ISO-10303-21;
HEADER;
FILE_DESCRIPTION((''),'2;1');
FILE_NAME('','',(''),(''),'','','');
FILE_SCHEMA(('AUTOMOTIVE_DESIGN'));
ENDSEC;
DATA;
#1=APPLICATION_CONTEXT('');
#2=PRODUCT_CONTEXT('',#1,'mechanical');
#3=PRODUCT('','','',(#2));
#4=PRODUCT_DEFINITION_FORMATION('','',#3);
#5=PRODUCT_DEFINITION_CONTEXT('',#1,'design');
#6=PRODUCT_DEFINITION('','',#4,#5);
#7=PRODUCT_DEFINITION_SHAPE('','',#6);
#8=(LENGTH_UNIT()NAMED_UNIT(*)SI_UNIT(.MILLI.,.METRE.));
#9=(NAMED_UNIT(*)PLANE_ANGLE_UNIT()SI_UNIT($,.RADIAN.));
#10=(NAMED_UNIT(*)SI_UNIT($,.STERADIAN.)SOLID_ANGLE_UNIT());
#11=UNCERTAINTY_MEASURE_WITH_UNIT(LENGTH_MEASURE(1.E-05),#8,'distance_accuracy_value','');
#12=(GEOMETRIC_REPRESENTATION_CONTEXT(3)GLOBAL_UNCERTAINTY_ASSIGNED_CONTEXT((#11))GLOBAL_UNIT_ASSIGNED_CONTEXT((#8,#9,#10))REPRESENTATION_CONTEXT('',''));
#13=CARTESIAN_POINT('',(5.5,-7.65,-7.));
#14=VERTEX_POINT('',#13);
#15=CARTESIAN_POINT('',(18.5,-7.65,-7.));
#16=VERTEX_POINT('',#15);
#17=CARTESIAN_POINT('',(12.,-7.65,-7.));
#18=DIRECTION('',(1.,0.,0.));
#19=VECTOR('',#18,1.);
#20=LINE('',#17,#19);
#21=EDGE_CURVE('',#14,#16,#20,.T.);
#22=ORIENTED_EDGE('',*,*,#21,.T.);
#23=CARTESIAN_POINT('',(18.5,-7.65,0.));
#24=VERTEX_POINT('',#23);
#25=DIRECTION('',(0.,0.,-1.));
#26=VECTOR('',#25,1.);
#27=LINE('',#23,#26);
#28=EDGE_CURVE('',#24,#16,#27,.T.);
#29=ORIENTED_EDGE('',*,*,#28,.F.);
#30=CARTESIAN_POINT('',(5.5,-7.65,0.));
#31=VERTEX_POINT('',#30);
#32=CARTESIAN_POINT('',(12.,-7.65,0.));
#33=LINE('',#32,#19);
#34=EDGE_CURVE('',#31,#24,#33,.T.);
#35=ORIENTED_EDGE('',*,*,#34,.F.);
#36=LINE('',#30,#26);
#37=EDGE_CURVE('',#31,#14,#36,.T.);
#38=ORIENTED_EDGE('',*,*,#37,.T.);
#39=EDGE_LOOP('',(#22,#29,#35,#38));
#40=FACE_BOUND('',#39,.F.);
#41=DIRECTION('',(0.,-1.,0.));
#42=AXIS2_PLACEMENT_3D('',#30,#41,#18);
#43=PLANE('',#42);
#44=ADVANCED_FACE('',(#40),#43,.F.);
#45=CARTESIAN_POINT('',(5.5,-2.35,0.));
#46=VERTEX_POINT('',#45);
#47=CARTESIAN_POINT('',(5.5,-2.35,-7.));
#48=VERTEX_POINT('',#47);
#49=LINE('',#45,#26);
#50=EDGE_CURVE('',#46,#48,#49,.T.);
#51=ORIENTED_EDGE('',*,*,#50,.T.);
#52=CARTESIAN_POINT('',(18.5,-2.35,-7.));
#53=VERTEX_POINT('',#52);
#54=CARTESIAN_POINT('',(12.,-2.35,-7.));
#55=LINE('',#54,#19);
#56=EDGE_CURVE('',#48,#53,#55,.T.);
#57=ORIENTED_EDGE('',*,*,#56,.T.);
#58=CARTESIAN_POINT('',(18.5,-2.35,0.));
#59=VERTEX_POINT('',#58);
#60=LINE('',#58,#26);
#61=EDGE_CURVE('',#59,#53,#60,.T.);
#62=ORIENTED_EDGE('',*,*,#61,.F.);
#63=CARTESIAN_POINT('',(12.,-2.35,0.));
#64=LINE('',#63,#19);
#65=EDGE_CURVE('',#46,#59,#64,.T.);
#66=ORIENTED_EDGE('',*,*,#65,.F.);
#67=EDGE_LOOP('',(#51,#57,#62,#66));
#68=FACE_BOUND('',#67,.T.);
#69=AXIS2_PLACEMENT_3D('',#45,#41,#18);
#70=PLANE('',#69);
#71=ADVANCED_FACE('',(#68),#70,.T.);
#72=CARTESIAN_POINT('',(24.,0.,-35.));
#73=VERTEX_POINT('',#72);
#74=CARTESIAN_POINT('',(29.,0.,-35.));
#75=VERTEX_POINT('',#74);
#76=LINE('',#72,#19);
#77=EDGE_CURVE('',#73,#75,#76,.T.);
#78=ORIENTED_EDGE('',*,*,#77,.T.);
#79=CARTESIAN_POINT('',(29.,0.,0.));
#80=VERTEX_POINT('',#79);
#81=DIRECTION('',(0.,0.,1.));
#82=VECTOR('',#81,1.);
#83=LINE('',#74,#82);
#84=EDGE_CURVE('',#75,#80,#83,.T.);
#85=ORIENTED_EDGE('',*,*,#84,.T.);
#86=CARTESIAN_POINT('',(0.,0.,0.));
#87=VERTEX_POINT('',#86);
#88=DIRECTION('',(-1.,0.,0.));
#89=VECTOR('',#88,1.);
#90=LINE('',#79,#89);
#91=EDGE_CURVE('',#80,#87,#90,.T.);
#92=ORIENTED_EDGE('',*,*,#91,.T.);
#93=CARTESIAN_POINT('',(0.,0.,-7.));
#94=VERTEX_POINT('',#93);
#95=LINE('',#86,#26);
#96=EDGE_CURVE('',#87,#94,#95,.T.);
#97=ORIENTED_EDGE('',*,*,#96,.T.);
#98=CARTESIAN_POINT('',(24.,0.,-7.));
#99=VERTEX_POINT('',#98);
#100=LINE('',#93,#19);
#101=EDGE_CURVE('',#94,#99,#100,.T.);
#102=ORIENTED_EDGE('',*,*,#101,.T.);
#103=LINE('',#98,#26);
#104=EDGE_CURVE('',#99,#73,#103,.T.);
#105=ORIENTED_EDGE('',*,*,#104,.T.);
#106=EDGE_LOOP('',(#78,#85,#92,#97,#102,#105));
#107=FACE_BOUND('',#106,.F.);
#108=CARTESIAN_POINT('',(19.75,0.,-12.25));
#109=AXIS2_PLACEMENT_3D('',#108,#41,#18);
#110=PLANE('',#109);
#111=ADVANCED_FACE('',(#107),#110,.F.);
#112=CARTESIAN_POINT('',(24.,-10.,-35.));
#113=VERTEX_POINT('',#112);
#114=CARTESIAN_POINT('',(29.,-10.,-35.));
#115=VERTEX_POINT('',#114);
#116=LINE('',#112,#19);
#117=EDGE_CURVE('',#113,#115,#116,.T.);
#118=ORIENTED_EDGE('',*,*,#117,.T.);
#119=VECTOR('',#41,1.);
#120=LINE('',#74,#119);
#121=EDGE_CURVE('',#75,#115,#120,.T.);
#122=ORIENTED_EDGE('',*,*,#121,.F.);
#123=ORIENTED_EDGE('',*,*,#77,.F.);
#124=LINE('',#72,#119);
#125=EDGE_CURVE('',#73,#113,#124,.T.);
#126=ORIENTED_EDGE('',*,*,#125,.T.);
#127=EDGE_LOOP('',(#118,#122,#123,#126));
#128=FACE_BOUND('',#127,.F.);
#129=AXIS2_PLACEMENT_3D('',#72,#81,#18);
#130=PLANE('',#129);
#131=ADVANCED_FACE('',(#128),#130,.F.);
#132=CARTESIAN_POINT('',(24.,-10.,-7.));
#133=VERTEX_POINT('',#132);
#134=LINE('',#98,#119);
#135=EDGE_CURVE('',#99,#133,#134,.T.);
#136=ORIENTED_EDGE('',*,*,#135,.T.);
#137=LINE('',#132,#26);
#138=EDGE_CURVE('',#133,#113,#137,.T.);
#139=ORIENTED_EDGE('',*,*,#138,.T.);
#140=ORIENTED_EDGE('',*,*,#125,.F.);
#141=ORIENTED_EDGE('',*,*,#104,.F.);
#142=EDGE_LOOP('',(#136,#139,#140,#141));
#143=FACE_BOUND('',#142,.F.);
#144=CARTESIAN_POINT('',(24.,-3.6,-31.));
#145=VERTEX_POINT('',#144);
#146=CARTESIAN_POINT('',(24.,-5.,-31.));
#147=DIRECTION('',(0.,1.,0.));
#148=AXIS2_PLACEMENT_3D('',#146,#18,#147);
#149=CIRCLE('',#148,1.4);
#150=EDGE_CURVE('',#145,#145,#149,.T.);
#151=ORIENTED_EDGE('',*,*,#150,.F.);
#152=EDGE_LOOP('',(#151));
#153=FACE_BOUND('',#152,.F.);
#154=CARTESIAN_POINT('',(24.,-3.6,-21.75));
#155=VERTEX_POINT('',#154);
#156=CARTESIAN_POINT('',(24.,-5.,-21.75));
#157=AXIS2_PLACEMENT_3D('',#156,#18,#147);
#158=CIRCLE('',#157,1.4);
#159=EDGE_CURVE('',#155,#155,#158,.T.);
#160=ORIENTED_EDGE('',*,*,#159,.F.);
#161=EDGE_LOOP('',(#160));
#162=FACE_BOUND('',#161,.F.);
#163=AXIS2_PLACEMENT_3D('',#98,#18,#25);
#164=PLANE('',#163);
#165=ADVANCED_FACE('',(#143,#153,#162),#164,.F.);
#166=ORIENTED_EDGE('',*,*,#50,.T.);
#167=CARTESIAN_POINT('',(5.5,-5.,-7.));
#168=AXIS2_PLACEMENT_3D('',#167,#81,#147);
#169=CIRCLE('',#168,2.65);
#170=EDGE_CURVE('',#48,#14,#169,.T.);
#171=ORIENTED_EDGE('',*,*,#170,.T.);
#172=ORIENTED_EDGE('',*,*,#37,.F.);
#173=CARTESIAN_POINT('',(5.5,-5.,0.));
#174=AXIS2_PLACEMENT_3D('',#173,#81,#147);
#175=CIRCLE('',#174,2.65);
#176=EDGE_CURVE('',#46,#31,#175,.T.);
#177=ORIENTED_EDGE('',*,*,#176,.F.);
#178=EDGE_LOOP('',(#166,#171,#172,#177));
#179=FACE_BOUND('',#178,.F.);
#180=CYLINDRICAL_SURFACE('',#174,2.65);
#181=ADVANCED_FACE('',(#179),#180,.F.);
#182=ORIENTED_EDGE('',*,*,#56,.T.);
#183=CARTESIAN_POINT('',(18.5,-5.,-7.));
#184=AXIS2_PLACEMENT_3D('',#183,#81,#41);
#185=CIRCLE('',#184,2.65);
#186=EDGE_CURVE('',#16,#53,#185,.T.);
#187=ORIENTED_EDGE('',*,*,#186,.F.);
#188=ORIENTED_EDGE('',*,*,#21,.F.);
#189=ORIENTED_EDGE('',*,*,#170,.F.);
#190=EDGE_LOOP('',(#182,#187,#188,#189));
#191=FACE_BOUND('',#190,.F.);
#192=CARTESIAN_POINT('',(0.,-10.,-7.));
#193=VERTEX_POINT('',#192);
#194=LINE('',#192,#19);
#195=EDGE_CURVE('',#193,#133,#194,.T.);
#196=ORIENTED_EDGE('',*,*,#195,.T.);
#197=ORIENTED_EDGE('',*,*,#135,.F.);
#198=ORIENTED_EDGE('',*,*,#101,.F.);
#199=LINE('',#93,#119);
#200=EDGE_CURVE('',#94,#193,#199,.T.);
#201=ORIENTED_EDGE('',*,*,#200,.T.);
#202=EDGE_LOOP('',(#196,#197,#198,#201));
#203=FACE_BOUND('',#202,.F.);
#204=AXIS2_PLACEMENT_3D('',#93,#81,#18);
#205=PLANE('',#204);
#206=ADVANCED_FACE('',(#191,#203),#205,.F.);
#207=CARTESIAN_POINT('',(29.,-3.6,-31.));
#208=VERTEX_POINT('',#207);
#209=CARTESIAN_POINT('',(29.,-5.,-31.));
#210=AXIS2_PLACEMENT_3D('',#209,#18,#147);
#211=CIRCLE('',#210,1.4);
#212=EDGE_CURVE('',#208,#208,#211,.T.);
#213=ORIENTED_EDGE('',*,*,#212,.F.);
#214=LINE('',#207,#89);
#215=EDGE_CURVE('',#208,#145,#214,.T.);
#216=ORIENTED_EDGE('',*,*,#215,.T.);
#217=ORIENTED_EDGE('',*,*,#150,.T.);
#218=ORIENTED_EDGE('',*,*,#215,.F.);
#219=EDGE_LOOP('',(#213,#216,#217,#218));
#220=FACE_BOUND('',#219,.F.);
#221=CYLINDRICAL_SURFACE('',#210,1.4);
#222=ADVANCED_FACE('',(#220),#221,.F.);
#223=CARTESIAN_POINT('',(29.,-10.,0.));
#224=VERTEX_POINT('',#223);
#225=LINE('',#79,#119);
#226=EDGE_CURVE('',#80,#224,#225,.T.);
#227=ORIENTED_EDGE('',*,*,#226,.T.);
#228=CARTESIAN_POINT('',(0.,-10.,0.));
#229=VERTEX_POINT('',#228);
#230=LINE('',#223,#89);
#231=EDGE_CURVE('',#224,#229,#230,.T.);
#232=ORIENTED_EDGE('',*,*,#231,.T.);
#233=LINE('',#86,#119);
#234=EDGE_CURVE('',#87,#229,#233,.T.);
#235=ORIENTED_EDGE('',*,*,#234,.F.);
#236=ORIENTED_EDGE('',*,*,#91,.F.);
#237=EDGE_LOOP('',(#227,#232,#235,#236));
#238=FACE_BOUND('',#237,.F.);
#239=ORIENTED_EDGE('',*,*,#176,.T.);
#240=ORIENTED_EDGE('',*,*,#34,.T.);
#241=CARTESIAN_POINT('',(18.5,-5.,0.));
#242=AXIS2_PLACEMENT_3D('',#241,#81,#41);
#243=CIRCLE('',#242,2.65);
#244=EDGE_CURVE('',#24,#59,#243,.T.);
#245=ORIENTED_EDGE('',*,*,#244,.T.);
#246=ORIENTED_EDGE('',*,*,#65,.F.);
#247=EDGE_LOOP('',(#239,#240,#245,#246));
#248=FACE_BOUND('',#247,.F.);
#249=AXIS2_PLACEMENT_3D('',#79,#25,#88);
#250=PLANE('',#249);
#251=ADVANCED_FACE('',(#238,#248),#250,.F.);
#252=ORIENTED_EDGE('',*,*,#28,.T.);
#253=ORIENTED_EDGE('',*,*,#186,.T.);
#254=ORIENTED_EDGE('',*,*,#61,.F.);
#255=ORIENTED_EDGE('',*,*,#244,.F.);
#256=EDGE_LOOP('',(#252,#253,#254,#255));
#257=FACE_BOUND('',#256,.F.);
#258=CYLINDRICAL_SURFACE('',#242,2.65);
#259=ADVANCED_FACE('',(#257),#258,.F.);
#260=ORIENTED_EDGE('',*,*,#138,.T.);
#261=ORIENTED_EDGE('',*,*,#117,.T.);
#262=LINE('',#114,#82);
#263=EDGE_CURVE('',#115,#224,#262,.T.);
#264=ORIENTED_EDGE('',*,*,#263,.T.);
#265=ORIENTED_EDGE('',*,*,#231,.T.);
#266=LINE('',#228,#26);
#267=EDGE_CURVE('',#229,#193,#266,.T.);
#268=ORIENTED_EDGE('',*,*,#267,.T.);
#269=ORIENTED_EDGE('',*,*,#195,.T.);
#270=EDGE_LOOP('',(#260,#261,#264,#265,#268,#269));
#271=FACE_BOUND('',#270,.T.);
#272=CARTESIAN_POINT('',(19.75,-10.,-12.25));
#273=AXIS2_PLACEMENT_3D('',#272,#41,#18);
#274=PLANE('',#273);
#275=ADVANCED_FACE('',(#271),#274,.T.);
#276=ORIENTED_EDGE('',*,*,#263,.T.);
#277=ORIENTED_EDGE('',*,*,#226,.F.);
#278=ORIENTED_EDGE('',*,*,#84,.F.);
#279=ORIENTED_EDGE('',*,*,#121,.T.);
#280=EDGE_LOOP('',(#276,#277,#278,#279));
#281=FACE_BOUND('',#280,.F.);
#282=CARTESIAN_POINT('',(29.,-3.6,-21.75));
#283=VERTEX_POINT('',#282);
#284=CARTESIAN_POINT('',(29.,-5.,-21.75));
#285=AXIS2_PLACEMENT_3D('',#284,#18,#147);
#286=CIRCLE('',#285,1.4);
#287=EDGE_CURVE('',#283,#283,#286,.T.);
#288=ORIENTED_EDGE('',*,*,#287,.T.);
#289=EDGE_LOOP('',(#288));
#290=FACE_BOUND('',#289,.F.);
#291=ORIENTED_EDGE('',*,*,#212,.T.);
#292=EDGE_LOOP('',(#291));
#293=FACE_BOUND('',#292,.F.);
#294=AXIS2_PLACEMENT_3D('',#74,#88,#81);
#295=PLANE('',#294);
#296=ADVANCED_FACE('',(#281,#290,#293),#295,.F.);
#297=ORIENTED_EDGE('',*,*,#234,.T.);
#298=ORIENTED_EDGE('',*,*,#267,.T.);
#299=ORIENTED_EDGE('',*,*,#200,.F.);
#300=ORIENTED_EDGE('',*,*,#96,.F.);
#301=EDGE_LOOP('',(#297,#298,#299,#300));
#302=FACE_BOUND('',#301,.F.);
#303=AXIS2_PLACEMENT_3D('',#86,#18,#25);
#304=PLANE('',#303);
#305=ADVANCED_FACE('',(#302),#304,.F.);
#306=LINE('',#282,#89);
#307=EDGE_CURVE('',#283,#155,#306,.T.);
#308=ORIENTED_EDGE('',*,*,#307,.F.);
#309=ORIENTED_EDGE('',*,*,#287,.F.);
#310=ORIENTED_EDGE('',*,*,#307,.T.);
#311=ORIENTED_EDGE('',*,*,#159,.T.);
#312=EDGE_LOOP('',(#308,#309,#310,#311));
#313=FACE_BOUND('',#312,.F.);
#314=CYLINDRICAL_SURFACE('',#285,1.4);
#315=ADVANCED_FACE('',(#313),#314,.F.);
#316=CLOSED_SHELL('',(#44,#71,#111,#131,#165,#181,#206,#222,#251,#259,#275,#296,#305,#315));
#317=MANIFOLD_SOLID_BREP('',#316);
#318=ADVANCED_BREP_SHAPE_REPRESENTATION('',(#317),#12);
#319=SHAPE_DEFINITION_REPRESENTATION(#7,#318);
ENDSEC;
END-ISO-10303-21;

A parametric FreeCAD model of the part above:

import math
import FreeCAD as App
import Part
import Sketcher
from FreeCAD import Vector

doc = App.newDocument("Part")
body = doc.addObject("PartDesign::Body", "Body")

# Sketch on XZ plane
sketch1 = body.newObject("Sketcher::SketchObject", "Sketch")
sketch1.AttachmentSupport = (doc.getObject("XZ_Plane"), [""])
sketch1.MapMode = "FlatFace"
sketch1.addGeometry(Part.LineSegment(Vector(29, 0, 0), Vector(0, 0, 0)), False)
sketch1.addGeometry(Part.LineSegment(Vector(0, 0, 0), Vector(0, -7, 0)), False)
sketch1.addGeometry(Part.LineSegment(Vector(0, -7, 0), Vector(24, -7, 0)), False)
sketch1.addGeometry(Part.LineSegment(Vector(24, -7, 0), Vector(24, -35, 0)), False)
sketch1.addGeometry(Part.LineSegment(Vector(24, -35, 0), Vector(29, -35, 0)), False)
sketch1.addGeometry(Part.LineSegment(Vector(29, -35, 0), Vector(29, 0, 0)), False)
sketch1.addConstraint(Sketcher.Constraint("Coincident", 0, 2, 1, 1))
sketch1.addConstraint(Sketcher.Constraint("Coincident", 1, 2, 2, 1))
sketch1.addConstraint(Sketcher.Constraint("Coincident", 2, 2, 3, 1))
sketch1.addConstraint(Sketcher.Constraint("Coincident", 3, 2, 4, 1))
sketch1.addConstraint(Sketcher.Constraint("Coincident", 4, 2, 5, 1))
sketch1.addConstraint(Sketcher.Constraint("Coincident", 5, 2, 0, 1))
sketch1.addConstraint(Sketcher.Constraint("Horizontal", 0))
sketch1.addConstraint(Sketcher.Constraint("Vertical", 1))
sketch1.addConstraint(Sketcher.Constraint("Horizontal", 2))
sketch1.addConstraint(Sketcher.Constraint("Vertical", 3))
sketch1.addConstraint(Sketcher.Constraint("Horizontal", 4))
sketch1.addConstraint(Sketcher.Constraint("Vertical", 5))
sketch1.addConstraint(Sketcher.Constraint("Coincident", 0, 2, -1, 1))
sketch1.addConstraint(Sketcher.Constraint("DistanceX", 0, 2, 0, 1, 29.0))
sketch1.addConstraint(Sketcher.Constraint("DistanceX", 2, 1, 2, 2, 24.0))
sketch1.addConstraint(Sketcher.Constraint("DistanceY", 1, 2, 1, 1, 7.0))
sketch1.addConstraint(Sketcher.Constraint("DistanceY", 3, 2, 3, 1, 28.0))
pad1 = body.newObject("PartDesign::Pad", "Pad")
pad1.Profile = sketch1
pad1.Length = 10

# Sketch on XY plane
sketch2 = body.newObject("Sketcher::SketchObject", "Sketch001")
sketch2.AttachmentSupport = (doc.getObject("XY_Plane"), [""])
sketch2.MapMode = "FlatFace"
sketch2.addGeometry(Part.LineSegment(Vector(5.5, -7.7, 0), Vector(18.5, -7.7, 0)), False)
sketch2.addGeometry(Part.ArcOfCircle(Part.Circle(Vector(18.5, -5, 0), Vector(0, 0, 1), 2.6), math.radians(-90), math.radians(90)), False)
sketch2.addGeometry(Part.LineSegment(Vector(18.5, -2.4, 0), Vector(5.5, -2.4, 0)), False)
sketch2.addGeometry(Part.ArcOfCircle(Part.Circle(Vector(5.5, -5, 0), Vector(0, 0, 1), 2.6), math.radians(90), math.radians(270)), False)
sketch2.addConstraint(Sketcher.Constraint("Tangent", 0, 2, 1, 1))
sketch2.addConstraint(Sketcher.Constraint("Tangent", 1, 2, 2, 1))
sketch2.addConstraint(Sketcher.Constraint("Tangent", 2, 2, 3, 1))
sketch2.addConstraint(Sketcher.Constraint("Tangent", 3, 2, 0, 1))
sketch2.addConstraint(Sketcher.Constraint("Horizontal", 0))
sketch2.addConstraint(Sketcher.Constraint("Horizontal", 2))
sketch2.addConstraint(Sketcher.Constraint("DistanceX", 0, 1, 0, 2, 13.0))
sketch2.addConstraint(Sketcher.Constraint("Radius", 1, 2.65))
sketch2.addConstraint(Sketcher.Constraint("DistanceY", 1, 3, -1, 1, 5.0))
sketch2.addConstraint(Sketcher.Constraint("DistanceX", -1, 1, 1, 3, 18.5))
pocket1 = body.newObject("PartDesign::Pocket", "Pocket")
pocket1.Profile = sketch2
pocket1.Type = "ThroughAll"

# Sketch on YZ plane
sketch3 = body.newObject("Sketcher::SketchObject", "Sketch002")
sketch3.AttachmentSupport = (doc.getObject("YZ_Plane"), [""])
sketch3.MapMode = "FlatFace"
sketch3.AttachmentOffset = App.Placement(Vector(0, 0, 29), App.Rotation())
sketch3.addGeometry(Part.Circle(Vector(-5, -21.8, 0), Vector(0, 0, 1), 1.4), False)
sketch3.addGeometry(Part.Circle(Vector(-5, -31, 0), Vector(0, 0, 1), 1.4), False)
sketch3.addConstraint(Sketcher.Constraint("Equal", 0, 1))
sketch3.addConstraint(Sketcher.Constraint("Vertical", 0, 3, 1, 3))
sketch3.addConstraint(Sketcher.Constraint("Diameter", 0, 2.8))
sketch3.addConstraint(Sketcher.Constraint("DistanceX", 0, 3, -1, 1, 5.0))
sketch3.addConstraint(Sketcher.Constraint("DistanceY", 1, 3, -1, 1, 31.0))
sketch3.addConstraint(Sketcher.Constraint("DistanceY", 0, 3, -1, 1, 21.75))
pocket2 = body.newObject("PartDesign::Pocket", "Pocket001")
pocket2.Profile = sketch3
pocket2.Type = "ThroughAll"

doc.recompute()
